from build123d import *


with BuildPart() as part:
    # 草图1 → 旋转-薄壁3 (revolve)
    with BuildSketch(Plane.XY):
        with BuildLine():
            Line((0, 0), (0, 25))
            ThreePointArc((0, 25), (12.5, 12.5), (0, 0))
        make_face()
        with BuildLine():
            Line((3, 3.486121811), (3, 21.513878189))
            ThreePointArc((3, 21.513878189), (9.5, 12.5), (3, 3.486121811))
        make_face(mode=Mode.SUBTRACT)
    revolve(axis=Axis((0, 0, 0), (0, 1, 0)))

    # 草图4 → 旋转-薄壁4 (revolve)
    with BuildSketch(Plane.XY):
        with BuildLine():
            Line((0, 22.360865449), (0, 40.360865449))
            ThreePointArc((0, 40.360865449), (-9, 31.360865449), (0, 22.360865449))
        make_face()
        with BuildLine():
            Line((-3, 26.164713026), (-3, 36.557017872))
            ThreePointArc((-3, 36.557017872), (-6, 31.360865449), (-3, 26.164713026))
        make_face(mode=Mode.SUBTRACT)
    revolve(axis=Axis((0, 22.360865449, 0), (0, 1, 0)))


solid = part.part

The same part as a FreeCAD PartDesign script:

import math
import FreeCAD as App
import Part
import Sketcher
from FreeCAD import Vector
Q = App.Units.Quantity

doc = App.newDocument("Part")
params = doc.addObject("Spreadsheet::Sheet", "Params")
for row, (alias, value) in enumerate([
    ("sketch1_radius", "12.5 mm"),
    ("sketch1_radius2", "9.5 mm"),
    ("revolution_angle", "360 deg"),
    ("sketch2_radius", "9 mm"),
    ("sketch2_radius2", "6 mm"),
    ("revolution2_angle", "360 deg"),
], start=1):
    params.set(f"A{row}", alias)
    params.set(f"B{row}", "=" + value)
    params.setAlias(f"B{row}", alias)

body = doc.addObject("PartDesign::Body", "Body")

# Sketch on XY plane
sketch1 = body.newObject("Sketcher::SketchObject", "Sketch")
sketch1.AttachmentSupport = (doc.getObject("XY_Plane"), [""])
sketch1.MapMode = "FlatFace"
sketch1.addGeometry(Part.LineSegment(Vector(0, 25, 0), Vector(0, 0, 0)), False)
sketch1.addGeometry(Part.ArcOfCircle(Part.Circle(Vector(0, 12, 0), Vector(0, 0, 1), 12), math.radians(-90), math.radians(90)), False)
sketch1.addGeometry(Part.LineSegment(Vector(3, 3, 0), Vector(3, 22, 0)), False)
sketch1.addGeometry(Part.ArcOfCircle(Part.Circle(Vector(0, 12, 0), Vector(0, 0, 1), 10), math.radians(-72), math.radians(72)), False)
sketch1.addConstraint(Sketcher.Constraint("Coincident", 0, 1, 1, 2))
sketch1.addConstraint(Sketcher.Constraint("Coincident", 1, 1, 0, 2))
sketch1.addConstraint(Sketcher.Constraint("Coincident", 2, 1, 3, 1))
sketch1.addConstraint(Sketcher.Constraint("Coincident", 3, 2, 2, 2))
sketch1.addConstraint(Sketcher.Constraint("Vertical", 0))
sketch1.addConstraint(Sketcher.Constraint("Vertical", 2))
sketch1.addConstraint(Sketcher.Constraint("Coincident", 1, 1, -1, 1))
sketch1.addConstraint(Sketcher.Constraint("Coincident", 3, 3, 1, 3))
sketch1.addConstraint(Sketcher.Constraint("PointOnObject", 1, 3, -2))
sketch1.addConstraint(Sketcher.Constraint("Radius", 1, Q("12.5 mm")))
sketch1.addConstraint(Sketcher.Constraint("Radius", 3, Q("9.5 mm")))
sketch1.addConstraint(Sketcher.Constraint("DistanceX", -1, 1, 2, 1, Q("3 mm")))
sketch1.setExpression("Constraints[9]", "Params.sketch1_radius")
sketch1.setExpression("Constraints[10]", "Params.sketch1_radius2")
revolution = body.newObject("PartDesign::Revolution", "Revolution")
revolution.Profile = sketch1
revolution.ReferenceAxis = (sketch1, ["V_Axis"])
revolution.setExpression("Angle", "Params.revolution_angle")

# Sketch on XY plane
sketch2 = body.newObject("Sketcher::SketchObject", "Sketch001")
sketch2.AttachmentSupport = (doc.getObject("XY_Plane"), [""])
sketch2.MapMode = "FlatFace"
sketch2.addGeometry(Part.LineSegment(Vector(0, 22, 0), Vector(0, 40, 0)), False)
sketch2.addGeometry(Part.ArcOfCircle(Part.Circle(Vector(0, 31, 0), Vector(0, 0, 1), 9), math.radians(90), math.radians(270)), False)
sketch2.addGeometry(Part.LineSegment(Vector(-3, 37, 0), Vector(-3, 26, 0)), False)
sketch2.addGeometry(Part.ArcOfCircle(Part.Circle(Vector(0, 31, 0), Vector(0, 0, 1), 6), math.radians(120), math.radians(240)), False)
sketch2.addConstraint(Sketcher.Constraint("Coincident", 0, 1, 1, 2))
sketch2.addConstraint(Sketcher.Constraint("Coincident", 1, 1, 0, 2))
sketch2.addConstraint(Sketcher.Constraint("Coincident", 2, 1, 3, 1))
sketch2.addConstraint(Sketcher.Constraint("Coincident", 3, 2, 2, 2))
sketch2.addConstraint(Sketcher.Constraint("Vertical", 0))
sketch2.addConstraint(Sketcher.Constraint("Vertical", 2))
sketch2.addConstraint(Sketcher.Constraint("Coincident", 3, 3, 1, 3))
sketch2.addConstraint(Sketcher.Constraint("PointOnObject", 1, 3, -2))
sketch2.addConstraint(Sketcher.Constraint("PointOnObject", 0, 1, -2))
sketch2.addConstraint(Sketcher.Constraint("Radius", 1, Q("9 mm")))
sketch2.addConstraint(Sketcher.Constraint("Radius", 3, Q("6 mm")))
sketch2.addConstraint(Sketcher.Constraint("DistanceX", 2, 1, -1, 1, Q("3 mm")))
sketch2.addConstraint(Sketcher.Constraint("DistanceY", -1, 1, 1, 3, Q("31.360865 mm")))
sketch2.setExpression("Constraints[9]", "Params.sketch2_radius")
sketch2.setExpression("Constraints[10]", "Params.sketch2_radius2")
revolution2 = body.newObject("PartDesign::Revolution", "Revolution001")
revolution2.Profile = sketch2
revolution2.ReferenceAxis = (sketch2, ["V_Axis"])
revolution2.setExpression("Angle", "Params.revolution2_angle")

doc.recompute()
